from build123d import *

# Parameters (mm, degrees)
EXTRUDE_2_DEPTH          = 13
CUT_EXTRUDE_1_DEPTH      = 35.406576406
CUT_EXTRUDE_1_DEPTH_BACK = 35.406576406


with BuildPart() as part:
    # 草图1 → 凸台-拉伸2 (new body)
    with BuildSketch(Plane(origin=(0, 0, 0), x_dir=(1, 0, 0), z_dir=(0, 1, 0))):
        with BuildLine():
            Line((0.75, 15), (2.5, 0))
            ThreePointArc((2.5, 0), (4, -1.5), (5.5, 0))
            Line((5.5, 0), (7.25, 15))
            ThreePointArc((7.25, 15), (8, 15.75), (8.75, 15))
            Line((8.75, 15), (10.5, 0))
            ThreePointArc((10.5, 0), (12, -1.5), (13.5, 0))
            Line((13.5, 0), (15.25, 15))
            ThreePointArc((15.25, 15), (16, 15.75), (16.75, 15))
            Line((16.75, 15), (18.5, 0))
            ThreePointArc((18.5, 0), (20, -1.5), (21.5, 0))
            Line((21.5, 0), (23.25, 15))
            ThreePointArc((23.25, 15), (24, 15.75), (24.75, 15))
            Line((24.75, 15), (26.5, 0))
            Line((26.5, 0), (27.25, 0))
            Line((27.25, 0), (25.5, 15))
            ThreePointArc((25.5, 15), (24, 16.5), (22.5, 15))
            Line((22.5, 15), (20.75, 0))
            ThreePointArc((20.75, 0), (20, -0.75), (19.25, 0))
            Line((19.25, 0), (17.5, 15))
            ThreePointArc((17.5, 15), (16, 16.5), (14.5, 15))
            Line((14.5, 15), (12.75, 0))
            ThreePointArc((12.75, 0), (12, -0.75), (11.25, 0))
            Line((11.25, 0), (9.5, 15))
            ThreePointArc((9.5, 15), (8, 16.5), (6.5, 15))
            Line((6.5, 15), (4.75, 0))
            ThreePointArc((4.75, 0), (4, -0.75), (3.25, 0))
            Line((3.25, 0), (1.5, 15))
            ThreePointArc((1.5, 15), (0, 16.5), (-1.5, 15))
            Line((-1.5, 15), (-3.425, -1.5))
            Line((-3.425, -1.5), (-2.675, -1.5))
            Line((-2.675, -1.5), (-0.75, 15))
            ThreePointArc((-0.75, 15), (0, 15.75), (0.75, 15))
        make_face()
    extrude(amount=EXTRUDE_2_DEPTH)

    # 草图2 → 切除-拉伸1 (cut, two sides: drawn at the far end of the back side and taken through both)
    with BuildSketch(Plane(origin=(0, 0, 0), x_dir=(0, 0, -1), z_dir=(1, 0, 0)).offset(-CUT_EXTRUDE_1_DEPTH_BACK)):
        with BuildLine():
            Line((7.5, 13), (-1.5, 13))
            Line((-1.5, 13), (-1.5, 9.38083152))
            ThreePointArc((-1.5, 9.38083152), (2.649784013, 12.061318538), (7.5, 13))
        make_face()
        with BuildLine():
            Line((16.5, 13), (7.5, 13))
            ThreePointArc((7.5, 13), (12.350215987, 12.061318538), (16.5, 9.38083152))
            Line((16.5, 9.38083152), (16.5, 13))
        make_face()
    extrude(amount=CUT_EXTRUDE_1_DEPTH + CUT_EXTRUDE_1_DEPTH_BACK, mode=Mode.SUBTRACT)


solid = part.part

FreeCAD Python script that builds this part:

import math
import FreeCAD as App
import Part
import Sketcher

doc = App.newDocument("Part")
body = doc.addObject("PartDesign::Body", "Body")

# Sketch on XZ plane
sketch1 = body.newObject("Sketcher::SketchObject", "Sketch")
sketch1.AttachmentSupport = (doc.getObject("XZ_Plane"), [""])
sketch1.MapMode = "FlatFace"
sketch1.addGeometry([
    Part.LineSegment(App.Vector(0.8, -15, 0), App.Vector(2.5, 0, 0)),  # 0
    Part.ArcOfCircle(Part.Circle(App.Vector(4, 0, 0), App.Vector(0, 0, 1), 1.5), math.radians(0), math.radians(180)),  # 1
    Part.LineSegment(App.Vector(5.5, 0, 0), App.Vector(7.2, -15, 0)),  # 2
    Part.ArcOfCircle(Part.Circle(App.Vector(8, -15, 0), App.Vector(0, 0, 1), 0.8), math.radians(180), math.radians(360)),  # 3
    Part.LineSegment(App.Vector(8.8, -15, 0), App.Vector(10.5, 0, 0)),  # 4
    Part.ArcOfCircle(Part.Circle(App.Vector(12, 0, 0), App.Vector(0, 0, 1), 1.5), math.radians(0), math.radians(180)),  # 5
    Part.LineSegment(App.Vector(13.5, 0, 0), App.Vector(15.2, -15, 0)),  # 6
    Part.ArcOfCircle(Part.Circle(App.Vector(16, -15, 0), App.Vector(0, 0, 1), 0.8), math.radians(180), math.radians(360)),  # 7
    Part.LineSegment(App.Vector(16.8, -15, 0), App.Vector(18.5, 0, 0)),  # 8
    Part.ArcOfCircle(Part.Circle(App.Vector(20, 0, 0), App.Vector(0, 0, 1), 1.5), math.radians(0), math.radians(180)),  # 9
    Part.LineSegment(App.Vector(21.5, 0, 0), App.Vector(23.2, -15, 0)),  # 10
    Part.ArcOfCircle(Part.Circle(App.Vector(24, -15, 0), App.Vector(0, 0, 1), 0.8), math.radians(180), math.radians(360)),  # 11
    Part.LineSegment(App.Vector(24.8, -15, 0), App.Vector(26.5, 0, 0)),  # 12
    Part.LineSegment(App.Vector(26.5, 0, 0), App.Vector(27.2, 0, 0)),  # 13
    Part.LineSegment(App.Vector(27.2, 0, 0), App.Vector(25.5, -15, 0)),  # 14
    Part.ArcOfCircle(Part.Circle(App.Vector(24, -15, 0), App.Vector(0, 0, 1), 1.5), math.radians(180), math.radians(360)),  # 15
    Part.LineSegment(App.Vector(22.5, -15, 0), App.Vector(20.8, 0, 0)),  # 16
    Part.ArcOfCircle(Part.Circle(App.Vector(20, 0, 0), App.Vector(0, 0, 1), 0.8), math.radians(0), math.radians(180)),  # 17
    Part.LineSegment(App.Vector(19.2, 0, 0), App.Vector(17.5, -15, 0)),  # 18
    Part.ArcOfCircle(Part.Circle(App.Vector(16, -15, 0), App.Vector(0, 0, 1), 1.5), math.radians(180), math.radians(360)),  # 19
    Part.LineSegment(App.Vector(14.5, -15, 0), App.Vector(12.8, 0, 0)),  # 20
    Part.ArcOfCircle(Part.Circle(App.Vector(12, 0, 0), App.Vector(0, 0, 1), 0.8), math.radians(0), math.radians(180)),  # 21
    Part.LineSegment(App.Vector(11.2, 0, 0), App.Vector(9.5, -15, 0)),  # 22
    Part.ArcOfCircle(Part.Circle(App.Vector(8, -15, 0), App.Vector(0, 0, 1), 1.5), math.radians(180), math.radians(360)),  # 23
    Part.LineSegment(App.Vector(6.5, -15, 0), App.Vector(4.8, 0, 0)),  # 24
    Part.ArcOfCircle(Part.Circle(App.Vector(4, 0, 0), App.Vector(0, 0, 1), 0.8), math.radians(0), math.radians(180)),  # 25
    Part.LineSegment(App.Vector(3.2, 0, 0), App.Vector(1.5, -15, 0)),  # 26
    Part.ArcOfCircle(Part.Circle(App.Vector(0, -15, 0), App.Vector(0, 0, 1), 1.5), math.radians(180), math.radians(360)),  # 27
    Part.LineSegment(App.Vector(-1.5, -15, 0), App.Vector(-3.4, 1.5, 0)),  # 28
    Part.LineSegment(App.Vector(-3.4, 1.5, 0), App.Vector(-2.7, 1.5, 0)),  # 29
    Part.LineSegment(App.Vector(-2.7, 1.5, 0), App.Vector(-0.8, -15, 0)),  # 30
    Part.ArcOfCircle(Part.Circle(App.Vector(0, -15, 0), App.Vector(0, 0, 1), 0.8), math.radians(180), math.radians(360)),  # 31
], False)
sketch1.addConstraint([
    Sketcher.Constraint("Coincident", 0, 2, 1, 2),
    Sketcher.Constraint("Coincident", 1, 1, 2, 1),
    Sketcher.Constraint("Coincident", 2, 2, 3, 1),
    Sketcher.Constraint("Coincident", 3, 2, 4, 1),
    Sketcher.Constraint("Coincident", 4, 2, 5, 2),
    Sketcher.Constraint("Coincident", 5, 1, 6, 1),
    Sketcher.Constraint("Coincident", 6, 2, 7, 1),
    Sketcher.Constraint("Coincident", 7, 2, 8, 1),
    Sketcher.Constraint("Coincident", 8, 2, 9, 2),
    Sketcher.Constraint("Coincident", 9, 1, 10, 1),
    Sketcher.Constraint("Coincident", 10, 2, 11, 1),
    Sketcher.Constraint("Coincident", 11, 2, 12, 1),
    Sketcher.Constraint("Coincident", 12, 2, 13, 1),
    Sketcher.Constraint("Coincident", 13, 2, 14, 1),
    Sketcher.Constraint("Coincident", 14, 2, 15, 2),
    Sketcher.Constraint("Coincident", 15, 1, 16, 1),
    Sketcher.Constraint("Coincident", 16, 2, 17, 1),
    Sketcher.Constraint("Coincident", 17, 2, 18, 1),
    Sketcher.Constraint("Coincident", 18, 2, 19, 2),
    Sketcher.Constraint("Coincident", 19, 1, 20, 1),
    Sketcher.Constraint("Coincident", 20, 2, 21, 1),
    Sketcher.Constraint("Coincident", 21, 2, 22, 1),
    Sketcher.Constraint("Coincident", 22, 2, 23, 2),
    Sketcher.Constraint("Coincident", 23, 1, 24, 1),
    Sketcher.Constraint("Coincident", 24, 2, 25, 1),
    Sketcher.Constraint("Coincident", 25, 2, 26, 1),
    Sketcher.Constraint("Coincident", 26, 2, 27, 2),
    Sketcher.Constraint("Coincident", 27, 1, 28, 1),
    Sketcher.Constraint("Coincident", 28, 2, 29, 1),
    Sketcher.Constraint("Coincident", 29, 2, 30, 1),
    Sketcher.Constraint("Coincident", 30, 2, 31, 1),
    Sketcher.Constraint("Coincident", 31, 2, 0, 1),
    Sketcher.Constraint("Horizontal", 13),
    Sketcher.Constraint("Horizontal", 29),
    Sketcher.Constraint("Coincident", 15, 3, 11, 3),
    Sketcher.Constraint("Coincident", 17, 3, 9, 3),
    Sketcher.Constraint("Coincident", 19, 3, 7, 3),
    Sketcher.Constraint("Coincident", 21, 3, 5, 3),
    Sketcher.Constraint("Coincident", 23, 3, 3, 3),
    Sketcher.Constraint("Coincident", 25, 3, 1, 3),
    Sketcher.Constraint("Coincident", 31, 3, 27, 3),
    Sketcher.Constraint("Equal", 1, 5),
    Sketcher.Constraint("Equal", 3, 7),
    Sketcher.Constraint("Equal", 5, 9),
    Sketcher.Constraint("Equal", 7, 11),
    Sketcher.Constraint("Equal", 9, 15),
    Sketcher.Constraint("Equal", 11, 17),
    Sketcher.Constraint("Equal", 15, 19),
    Sketcher.Constraint("Equal", 17, 21),
    Sketcher.Constraint("Equal", 19, 23),
    Sketcher.Constraint("Equal", 21, 25),
    Sketcher.Constraint("Equal", 23, 27),
    Sketcher.Constraint("Equal", 25, 31),
    Sketcher.Constraint("Symmetric", 26, 2, 27, 1, -2),
    Sketcher.Constraint("PointOnObject", 1, 3, -1),
    Sketcher.Constraint("PointOnObject", 5, 3, -1),
    Sketcher.Constraint("PointOnObject", 9, 3, -1),
    Sketcher.Constraint("PointOnObject", 0, 2, -1),
    Sketcher.Constraint("PointOnObject", 1, 1, -1),
    Sketcher.Constraint("PointOnObject", 4, 2, -1),
    Sketcher.Constraint("PointOnObject", 5, 1, -1),
    Sketcher.Constraint("PointOnObject", 8, 2, -1),
    Sketcher.Constraint("PointOnObject", 9, 1, -1),
    Sketcher.Constraint("PointOnObject", 12, 2, -1),
    Sketcher.Constraint("PointOnObject", 16, 2, -1),
    Sketcher.Constraint("PointOnObject", 17, 2, -1),
    Sketcher.Constraint("PointOnObject", 20, 2, -1),
    Sketcher.Constraint("PointOnObject", 21, 2, -1),
    Sketcher.Constraint("PointOnObject", 24, 2, -1),
    Sketcher.Constraint("PointOnObject", 25, 2, -1),
    Sketcher.Constraint("Parallel", 0, 4),
    Sketcher.Constraint("Parallel", 2, 6),
    Sketcher.Constraint("Parallel", 4, 8),
    Sketcher.Constraint("Parallel", 6, 10),
    Sketcher.Constraint("Parallel", 8, 12),
    Sketcher.Constraint("Parallel", 12, 14),
    Sketcher.Constraint("Parallel", 10, 16),
    Sketcher.Constraint("Parallel", 14, 18),
    Sketcher.Constraint("Parallel", 16, 20),
    Sketcher.Constraint("Parallel", 18, 22),
    Sketcher.Constraint("Parallel", 20, 24),
    Sketcher.Constraint("Parallel", 22, 26),
    Sketcher.Constraint("Parallel", 24, 28),
    Sketcher.Constraint("Parallel", 28, 30),
    Sketcher.Constraint("Horizontal", 3, 3, 7, 3),
    Sketcher.Constraint("Horizontal", 7, 3, 11, 3),
    Sketcher.Constraint("Horizontal", 23, 3, 27, 3),
    Sketcher.Constraint("Horizontal", 31, 3, 2, 2),
    Sketcher.Constraint("Horizontal", 2, 2, 3, 2),
    Sketcher.Constraint("Horizontal", 3, 2, 6, 2),
    Sketcher.Constraint("Horizontal", 6, 2, 7, 2),
    Sketcher.Constraint("Horizontal", 7, 2, 10, 2),
    Sketcher.Constraint("Horizontal", 10, 2, 11, 2),
    Sketcher.Constraint("Horizontal", 11, 2, 14, 2),
    Sketcher.Constraint("Horizontal", 23, 1, 26, 2),
    Sketcher.Constraint("Horizontal", 27, 1, 30, 2),
    Sketcher.Constraint("Equal", 0, 2),
    Sketcher.Constraint("Radius", 1, 1.5),
    Sketcher.Constraint("Radius", 3, 0.75),
    Sketcher.Constraint("DistanceX", -1, 1, 1, 3, 4.0),
    Sketcher.Constraint("DistanceY", 3, 3, -1, 1, 15.0),
    Sketcher.Constraint("DistanceY", -1, 1, 28, 2, 1.5),
])
pad1 = body.newObject("PartDesign::Pad", "Pad")
pad1.Profile = sketch1
pad1.Length = 13
pad1.Reversed = True

# Sketch on YZ plane
sketch2 = body.newObject("Sketcher::SketchObject", "Sketch001")
sketch2.AttachmentSupport = (doc.getObject("YZ_Plane"), [""])
sketch2.MapMode = "FlatFace"
sketch2.addGeometry([
    Part.LineSegment(App.Vector(13, -7.5, 0), App.Vector(13, 1.5, 0)),  # 0
    Part.LineSegment(App.Vector(13, 1.5, 0), App.Vector(9.4, 1.5, 0)),  # 1
    Part.ArcOfCircle(Part.Circle(App.Vector(0, -7.5, 0), App.Vector(0, 0, 1), 13), math.radians(0), math.radians(44)),  # 2
    Part.LineSegment(App.Vector(13, -16.5, 0), App.Vector(13, -7.5, 0)),  # 3
    Part.ArcOfCircle(Part.Circle(App.Vector(0, -7.5, 0), App.Vector(0, 0, 1), 13), math.radians(-44), math.radians(0)),  # 4
    Part.LineSegment(App.Vector(9.4, -16.5, 0), App.Vector(13, -16.5, 0)),  # 5
], False)
sketch2.addConstraint([
    Sketcher.Constraint("Coincident", 0, 2, 1, 1),
    Sketcher.Constraint("Coincident", 1, 2, 2, 2),
    Sketcher.Constraint("Tangent", 2, 1, 0, 1),
    Sketcher.Constraint("Tangent", 3, 2, 4, 2),
    Sketcher.Constraint("Coincident", 4, 1, 5, 1),
    Sketcher.Constraint("Coincident", 5, 2, 3, 1),
    Sketcher.Constraint("Vertical", 0),
    Sketcher.Constraint("Horizontal", 1),
    Sketcher.Constraint("Vertical", 3),
    Sketcher.Constraint("Horizontal", 5),
    Sketcher.Constraint("Coincident", 4, 3, 2, 3),
    Sketcher.Constraint("Equal", 2, 4),
    Sketcher.Constraint("PointOnObject", 2, 3, -2),
    Sketcher.Constraint("Vertical", 1, 2, 4, 1),
    Sketcher.Constraint("Radius", 2, 13.0),
    Sketcher.Constraint("DistanceY", 0, 1, 0, 2, 9.0),
    Sketcher.Constraint("DistanceY", 2, 3, -1, 1, 7.5),
])
pocket1 = body.newObject("PartDesign::Pocket", "Pocket")
pocket1.Profile = sketch2
pocket1.Type = "ThroughAll"
pocket1.Midplane = True

doc.recompute()
